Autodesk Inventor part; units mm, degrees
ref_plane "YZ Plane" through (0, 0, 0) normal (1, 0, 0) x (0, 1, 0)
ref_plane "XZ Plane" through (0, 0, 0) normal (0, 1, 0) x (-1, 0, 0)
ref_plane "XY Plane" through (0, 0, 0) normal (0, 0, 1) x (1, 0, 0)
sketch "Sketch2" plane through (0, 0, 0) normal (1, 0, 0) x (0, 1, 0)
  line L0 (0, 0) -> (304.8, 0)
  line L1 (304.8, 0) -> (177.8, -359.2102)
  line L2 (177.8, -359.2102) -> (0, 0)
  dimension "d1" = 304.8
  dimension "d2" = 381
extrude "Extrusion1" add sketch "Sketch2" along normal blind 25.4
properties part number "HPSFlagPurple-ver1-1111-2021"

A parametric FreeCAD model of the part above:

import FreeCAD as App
import Part
import Sketcher
from FreeCAD import Vector
Q = App.Units.Quantity


def add_polygon(sketch, points):
    """Adds a closed chain of lines whose ends are joined by coincident constraints."""
    first, n = sketch.GeometryCount, len(points)
    for a, b in zip(points, points[1:] + points[:1]):
        sketch.addGeometry(Part.LineSegment(App.Vector(*a, 0), App.Vector(*b, 0)), False)
    for i in range(n):
        sketch.addConstraint(Sketcher.Constraint("Coincident", first + i, 2, first + (i + 1) % n, 1))

doc = App.newDocument("Part")
body = doc.addObject("PartDesign::Body", "Body")

# Sketch on YZ plane
sketch1 = body.newObject("Sketcher::SketchObject", "Sketch")
sketch1.AttachmentSupport = (doc.getObject("YZ_Plane"), [""])
sketch1.MapMode = "FlatFace"
add_polygon(sketch1, [(305, 0), (0, 0), (178, -359)])  # lines 0-2
sketch1.addConstraint(Sketcher.Constraint("Horizontal", 0))
sketch1.addConstraint(Sketcher.Constraint("Coincident", 0, 2, -1, 1))
sketch1.addConstraint(Sketcher.Constraint("DistanceX", 0, 2, 0, 1, Q("12 in")))
sketch1.addConstraint(Sketcher.Constraint("Distance", 2, Q("15 in")))
sketch1.addConstraint(Sketcher.Constraint("DistanceX", -1, 1, 1, 2, Q("7 in")))
pad1 = body.newObject("PartDesign::Pad", "Pad")
pad1.Profile = sketch1
pad1.Length = Q("1 in")

doc.recompute()
